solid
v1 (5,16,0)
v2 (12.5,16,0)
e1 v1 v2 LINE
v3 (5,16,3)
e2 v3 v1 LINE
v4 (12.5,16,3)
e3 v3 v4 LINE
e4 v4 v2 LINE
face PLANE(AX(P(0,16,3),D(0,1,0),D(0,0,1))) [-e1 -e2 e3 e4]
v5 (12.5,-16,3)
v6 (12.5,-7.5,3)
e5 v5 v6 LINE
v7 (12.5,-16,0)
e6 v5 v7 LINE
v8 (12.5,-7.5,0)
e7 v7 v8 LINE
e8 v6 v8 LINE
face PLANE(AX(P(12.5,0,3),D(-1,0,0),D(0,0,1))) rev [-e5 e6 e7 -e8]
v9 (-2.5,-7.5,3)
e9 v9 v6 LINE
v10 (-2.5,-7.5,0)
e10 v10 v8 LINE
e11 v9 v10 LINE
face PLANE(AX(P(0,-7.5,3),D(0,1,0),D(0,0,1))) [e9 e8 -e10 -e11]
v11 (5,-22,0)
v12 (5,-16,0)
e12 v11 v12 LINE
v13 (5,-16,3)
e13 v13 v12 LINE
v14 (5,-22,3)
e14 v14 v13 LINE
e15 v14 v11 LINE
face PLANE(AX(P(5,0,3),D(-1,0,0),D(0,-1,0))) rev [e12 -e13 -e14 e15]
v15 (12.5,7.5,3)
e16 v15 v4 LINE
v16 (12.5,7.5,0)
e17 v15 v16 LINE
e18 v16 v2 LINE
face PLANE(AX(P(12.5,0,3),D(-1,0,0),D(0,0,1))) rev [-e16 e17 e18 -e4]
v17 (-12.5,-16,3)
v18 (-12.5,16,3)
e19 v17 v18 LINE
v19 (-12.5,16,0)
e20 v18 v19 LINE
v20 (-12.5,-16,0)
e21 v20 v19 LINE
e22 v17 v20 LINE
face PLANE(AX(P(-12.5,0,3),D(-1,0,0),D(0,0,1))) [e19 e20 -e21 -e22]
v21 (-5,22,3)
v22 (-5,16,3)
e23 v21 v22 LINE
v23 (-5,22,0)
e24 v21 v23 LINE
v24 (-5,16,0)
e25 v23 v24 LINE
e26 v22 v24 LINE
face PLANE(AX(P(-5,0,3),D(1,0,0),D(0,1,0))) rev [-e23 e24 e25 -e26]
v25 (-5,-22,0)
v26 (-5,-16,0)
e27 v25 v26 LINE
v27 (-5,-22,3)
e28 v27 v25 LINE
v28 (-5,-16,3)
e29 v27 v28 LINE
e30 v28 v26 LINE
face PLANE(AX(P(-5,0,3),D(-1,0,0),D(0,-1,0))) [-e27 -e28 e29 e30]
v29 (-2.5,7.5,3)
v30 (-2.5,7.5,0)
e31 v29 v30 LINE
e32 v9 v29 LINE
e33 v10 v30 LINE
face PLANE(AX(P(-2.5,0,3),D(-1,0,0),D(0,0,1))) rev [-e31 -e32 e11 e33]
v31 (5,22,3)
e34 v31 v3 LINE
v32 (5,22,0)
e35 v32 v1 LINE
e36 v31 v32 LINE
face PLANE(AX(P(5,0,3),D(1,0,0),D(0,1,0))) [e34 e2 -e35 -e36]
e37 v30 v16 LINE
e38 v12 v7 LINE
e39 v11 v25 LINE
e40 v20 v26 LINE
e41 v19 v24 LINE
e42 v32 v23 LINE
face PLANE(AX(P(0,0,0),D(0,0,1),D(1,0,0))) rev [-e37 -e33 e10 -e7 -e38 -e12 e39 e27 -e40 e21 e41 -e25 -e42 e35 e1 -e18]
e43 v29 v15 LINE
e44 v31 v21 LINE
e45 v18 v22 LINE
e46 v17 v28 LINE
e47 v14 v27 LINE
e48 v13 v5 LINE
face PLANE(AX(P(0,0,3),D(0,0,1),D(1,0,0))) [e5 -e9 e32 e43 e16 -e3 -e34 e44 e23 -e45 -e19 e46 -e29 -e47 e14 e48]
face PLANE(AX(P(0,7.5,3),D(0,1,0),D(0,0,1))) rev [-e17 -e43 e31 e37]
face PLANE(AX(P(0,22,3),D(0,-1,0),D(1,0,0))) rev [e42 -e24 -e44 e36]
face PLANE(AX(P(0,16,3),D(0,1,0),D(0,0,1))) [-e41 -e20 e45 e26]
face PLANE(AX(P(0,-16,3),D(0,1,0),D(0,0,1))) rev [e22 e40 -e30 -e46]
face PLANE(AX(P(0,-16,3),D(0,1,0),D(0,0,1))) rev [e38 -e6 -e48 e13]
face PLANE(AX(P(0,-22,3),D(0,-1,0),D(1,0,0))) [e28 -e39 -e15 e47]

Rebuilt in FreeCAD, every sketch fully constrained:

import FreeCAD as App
import Part
import Sketcher

V = App.Vector


def add_polygon(sketch, points):
    """Adds a closed chain of lines whose ends are joined by coincident constraints."""
    first, n = sketch.GeometryCount, len(points)
    for a, b in zip(points, points[1:] + points[:1]):
        sketch.addGeometry(Part.LineSegment(App.Vector(*a, 0), App.Vector(*b, 0)), False)
    for i in range(n):
        sketch.addConstraint(Sketcher.Constraint("Coincident", first + i, 2, first + (i + 1) % n, 1))

doc = App.newDocument("Part")
body = doc.addObject("PartDesign::Body", "Body")

# Sketch on XY plane
sketch1 = body.newObject("Sketcher::SketchObject", "Sketch")
sketch1.AttachmentSupport = (doc.getObject("XY_Plane"), [""])
sketch1.MapMode = "FlatFace"
add_polygon(sketch1, [(-12.5, 16), (-12.5, -16), (-5, -16), (-5, -22), (5, -22), (5, -16), (12.5, -16), (12.5, -7.5), (-2.5, -7.5), (-2.5, 7.5), (12.5, 7.5), (12.5, 16), (5, 16), (5, 22), (-5, 22), (-5, 16)])  # lines 0-15
sketch1.addConstraint([
    Sketcher.Constraint("Vertical", 0),
    Sketcher.Constraint("Horizontal", 1),
    Sketcher.Constraint("Vertical", 2),
    Sketcher.Constraint("Horizontal", 3),
    Sketcher.Constraint("Vertical", 4),
    Sketcher.Constraint("Horizontal", 5),
    Sketcher.Constraint("Vertical", 6),
    Sketcher.Constraint("Horizontal", 7),
    Sketcher.Constraint("Vertical", 8),
    Sketcher.Constraint("Horizontal", 9),
    Sketcher.Constraint("Vertical", 10),
    Sketcher.Constraint("Horizontal", 11),
    Sketcher.Constraint("Vertical", 12),
    Sketcher.Constraint("Horizontal", 13),
    Sketcher.Constraint("Vertical", 14),
    Sketcher.Constraint("Horizontal", 15),
    Sketcher.Constraint("Symmetric", 0, 2, 10, 2, -1, 1),
    Sketcher.Constraint("Symmetric", 2, 2, 12, 2, -1, 1),
    Sketcher.Constraint("Symmetric", 4, 2, 14, 2, -1, 1),
    Sketcher.Constraint("Symmetric", 1, 2, 4, 2, -2),
    Sketcher.Constraint("Symmetric", 6, 2, 9, 2, -1),
    Sketcher.Constraint("Equal", 9, 8),
    Sketcher.Constraint("DistanceX", 3, 1, 3, 2, 10.0),
    Sketcher.Constraint("DistanceX", 7, 2, 7, 1, 15.0),
    Sketcher.Constraint("DistanceY", 0, 2, 0, 1, 32.0),
    Sketcher.Constraint("DistanceY", 2, 2, 2, 1, 6.0),
    Sketcher.Constraint("DistanceX", 1, 1, 1, 2, 7.5),
])
pad1 = body.newObject("PartDesign::Pad", "Pad")
pad1.Profile = sketch1
pad1.Length = 3

doc.recompute()
